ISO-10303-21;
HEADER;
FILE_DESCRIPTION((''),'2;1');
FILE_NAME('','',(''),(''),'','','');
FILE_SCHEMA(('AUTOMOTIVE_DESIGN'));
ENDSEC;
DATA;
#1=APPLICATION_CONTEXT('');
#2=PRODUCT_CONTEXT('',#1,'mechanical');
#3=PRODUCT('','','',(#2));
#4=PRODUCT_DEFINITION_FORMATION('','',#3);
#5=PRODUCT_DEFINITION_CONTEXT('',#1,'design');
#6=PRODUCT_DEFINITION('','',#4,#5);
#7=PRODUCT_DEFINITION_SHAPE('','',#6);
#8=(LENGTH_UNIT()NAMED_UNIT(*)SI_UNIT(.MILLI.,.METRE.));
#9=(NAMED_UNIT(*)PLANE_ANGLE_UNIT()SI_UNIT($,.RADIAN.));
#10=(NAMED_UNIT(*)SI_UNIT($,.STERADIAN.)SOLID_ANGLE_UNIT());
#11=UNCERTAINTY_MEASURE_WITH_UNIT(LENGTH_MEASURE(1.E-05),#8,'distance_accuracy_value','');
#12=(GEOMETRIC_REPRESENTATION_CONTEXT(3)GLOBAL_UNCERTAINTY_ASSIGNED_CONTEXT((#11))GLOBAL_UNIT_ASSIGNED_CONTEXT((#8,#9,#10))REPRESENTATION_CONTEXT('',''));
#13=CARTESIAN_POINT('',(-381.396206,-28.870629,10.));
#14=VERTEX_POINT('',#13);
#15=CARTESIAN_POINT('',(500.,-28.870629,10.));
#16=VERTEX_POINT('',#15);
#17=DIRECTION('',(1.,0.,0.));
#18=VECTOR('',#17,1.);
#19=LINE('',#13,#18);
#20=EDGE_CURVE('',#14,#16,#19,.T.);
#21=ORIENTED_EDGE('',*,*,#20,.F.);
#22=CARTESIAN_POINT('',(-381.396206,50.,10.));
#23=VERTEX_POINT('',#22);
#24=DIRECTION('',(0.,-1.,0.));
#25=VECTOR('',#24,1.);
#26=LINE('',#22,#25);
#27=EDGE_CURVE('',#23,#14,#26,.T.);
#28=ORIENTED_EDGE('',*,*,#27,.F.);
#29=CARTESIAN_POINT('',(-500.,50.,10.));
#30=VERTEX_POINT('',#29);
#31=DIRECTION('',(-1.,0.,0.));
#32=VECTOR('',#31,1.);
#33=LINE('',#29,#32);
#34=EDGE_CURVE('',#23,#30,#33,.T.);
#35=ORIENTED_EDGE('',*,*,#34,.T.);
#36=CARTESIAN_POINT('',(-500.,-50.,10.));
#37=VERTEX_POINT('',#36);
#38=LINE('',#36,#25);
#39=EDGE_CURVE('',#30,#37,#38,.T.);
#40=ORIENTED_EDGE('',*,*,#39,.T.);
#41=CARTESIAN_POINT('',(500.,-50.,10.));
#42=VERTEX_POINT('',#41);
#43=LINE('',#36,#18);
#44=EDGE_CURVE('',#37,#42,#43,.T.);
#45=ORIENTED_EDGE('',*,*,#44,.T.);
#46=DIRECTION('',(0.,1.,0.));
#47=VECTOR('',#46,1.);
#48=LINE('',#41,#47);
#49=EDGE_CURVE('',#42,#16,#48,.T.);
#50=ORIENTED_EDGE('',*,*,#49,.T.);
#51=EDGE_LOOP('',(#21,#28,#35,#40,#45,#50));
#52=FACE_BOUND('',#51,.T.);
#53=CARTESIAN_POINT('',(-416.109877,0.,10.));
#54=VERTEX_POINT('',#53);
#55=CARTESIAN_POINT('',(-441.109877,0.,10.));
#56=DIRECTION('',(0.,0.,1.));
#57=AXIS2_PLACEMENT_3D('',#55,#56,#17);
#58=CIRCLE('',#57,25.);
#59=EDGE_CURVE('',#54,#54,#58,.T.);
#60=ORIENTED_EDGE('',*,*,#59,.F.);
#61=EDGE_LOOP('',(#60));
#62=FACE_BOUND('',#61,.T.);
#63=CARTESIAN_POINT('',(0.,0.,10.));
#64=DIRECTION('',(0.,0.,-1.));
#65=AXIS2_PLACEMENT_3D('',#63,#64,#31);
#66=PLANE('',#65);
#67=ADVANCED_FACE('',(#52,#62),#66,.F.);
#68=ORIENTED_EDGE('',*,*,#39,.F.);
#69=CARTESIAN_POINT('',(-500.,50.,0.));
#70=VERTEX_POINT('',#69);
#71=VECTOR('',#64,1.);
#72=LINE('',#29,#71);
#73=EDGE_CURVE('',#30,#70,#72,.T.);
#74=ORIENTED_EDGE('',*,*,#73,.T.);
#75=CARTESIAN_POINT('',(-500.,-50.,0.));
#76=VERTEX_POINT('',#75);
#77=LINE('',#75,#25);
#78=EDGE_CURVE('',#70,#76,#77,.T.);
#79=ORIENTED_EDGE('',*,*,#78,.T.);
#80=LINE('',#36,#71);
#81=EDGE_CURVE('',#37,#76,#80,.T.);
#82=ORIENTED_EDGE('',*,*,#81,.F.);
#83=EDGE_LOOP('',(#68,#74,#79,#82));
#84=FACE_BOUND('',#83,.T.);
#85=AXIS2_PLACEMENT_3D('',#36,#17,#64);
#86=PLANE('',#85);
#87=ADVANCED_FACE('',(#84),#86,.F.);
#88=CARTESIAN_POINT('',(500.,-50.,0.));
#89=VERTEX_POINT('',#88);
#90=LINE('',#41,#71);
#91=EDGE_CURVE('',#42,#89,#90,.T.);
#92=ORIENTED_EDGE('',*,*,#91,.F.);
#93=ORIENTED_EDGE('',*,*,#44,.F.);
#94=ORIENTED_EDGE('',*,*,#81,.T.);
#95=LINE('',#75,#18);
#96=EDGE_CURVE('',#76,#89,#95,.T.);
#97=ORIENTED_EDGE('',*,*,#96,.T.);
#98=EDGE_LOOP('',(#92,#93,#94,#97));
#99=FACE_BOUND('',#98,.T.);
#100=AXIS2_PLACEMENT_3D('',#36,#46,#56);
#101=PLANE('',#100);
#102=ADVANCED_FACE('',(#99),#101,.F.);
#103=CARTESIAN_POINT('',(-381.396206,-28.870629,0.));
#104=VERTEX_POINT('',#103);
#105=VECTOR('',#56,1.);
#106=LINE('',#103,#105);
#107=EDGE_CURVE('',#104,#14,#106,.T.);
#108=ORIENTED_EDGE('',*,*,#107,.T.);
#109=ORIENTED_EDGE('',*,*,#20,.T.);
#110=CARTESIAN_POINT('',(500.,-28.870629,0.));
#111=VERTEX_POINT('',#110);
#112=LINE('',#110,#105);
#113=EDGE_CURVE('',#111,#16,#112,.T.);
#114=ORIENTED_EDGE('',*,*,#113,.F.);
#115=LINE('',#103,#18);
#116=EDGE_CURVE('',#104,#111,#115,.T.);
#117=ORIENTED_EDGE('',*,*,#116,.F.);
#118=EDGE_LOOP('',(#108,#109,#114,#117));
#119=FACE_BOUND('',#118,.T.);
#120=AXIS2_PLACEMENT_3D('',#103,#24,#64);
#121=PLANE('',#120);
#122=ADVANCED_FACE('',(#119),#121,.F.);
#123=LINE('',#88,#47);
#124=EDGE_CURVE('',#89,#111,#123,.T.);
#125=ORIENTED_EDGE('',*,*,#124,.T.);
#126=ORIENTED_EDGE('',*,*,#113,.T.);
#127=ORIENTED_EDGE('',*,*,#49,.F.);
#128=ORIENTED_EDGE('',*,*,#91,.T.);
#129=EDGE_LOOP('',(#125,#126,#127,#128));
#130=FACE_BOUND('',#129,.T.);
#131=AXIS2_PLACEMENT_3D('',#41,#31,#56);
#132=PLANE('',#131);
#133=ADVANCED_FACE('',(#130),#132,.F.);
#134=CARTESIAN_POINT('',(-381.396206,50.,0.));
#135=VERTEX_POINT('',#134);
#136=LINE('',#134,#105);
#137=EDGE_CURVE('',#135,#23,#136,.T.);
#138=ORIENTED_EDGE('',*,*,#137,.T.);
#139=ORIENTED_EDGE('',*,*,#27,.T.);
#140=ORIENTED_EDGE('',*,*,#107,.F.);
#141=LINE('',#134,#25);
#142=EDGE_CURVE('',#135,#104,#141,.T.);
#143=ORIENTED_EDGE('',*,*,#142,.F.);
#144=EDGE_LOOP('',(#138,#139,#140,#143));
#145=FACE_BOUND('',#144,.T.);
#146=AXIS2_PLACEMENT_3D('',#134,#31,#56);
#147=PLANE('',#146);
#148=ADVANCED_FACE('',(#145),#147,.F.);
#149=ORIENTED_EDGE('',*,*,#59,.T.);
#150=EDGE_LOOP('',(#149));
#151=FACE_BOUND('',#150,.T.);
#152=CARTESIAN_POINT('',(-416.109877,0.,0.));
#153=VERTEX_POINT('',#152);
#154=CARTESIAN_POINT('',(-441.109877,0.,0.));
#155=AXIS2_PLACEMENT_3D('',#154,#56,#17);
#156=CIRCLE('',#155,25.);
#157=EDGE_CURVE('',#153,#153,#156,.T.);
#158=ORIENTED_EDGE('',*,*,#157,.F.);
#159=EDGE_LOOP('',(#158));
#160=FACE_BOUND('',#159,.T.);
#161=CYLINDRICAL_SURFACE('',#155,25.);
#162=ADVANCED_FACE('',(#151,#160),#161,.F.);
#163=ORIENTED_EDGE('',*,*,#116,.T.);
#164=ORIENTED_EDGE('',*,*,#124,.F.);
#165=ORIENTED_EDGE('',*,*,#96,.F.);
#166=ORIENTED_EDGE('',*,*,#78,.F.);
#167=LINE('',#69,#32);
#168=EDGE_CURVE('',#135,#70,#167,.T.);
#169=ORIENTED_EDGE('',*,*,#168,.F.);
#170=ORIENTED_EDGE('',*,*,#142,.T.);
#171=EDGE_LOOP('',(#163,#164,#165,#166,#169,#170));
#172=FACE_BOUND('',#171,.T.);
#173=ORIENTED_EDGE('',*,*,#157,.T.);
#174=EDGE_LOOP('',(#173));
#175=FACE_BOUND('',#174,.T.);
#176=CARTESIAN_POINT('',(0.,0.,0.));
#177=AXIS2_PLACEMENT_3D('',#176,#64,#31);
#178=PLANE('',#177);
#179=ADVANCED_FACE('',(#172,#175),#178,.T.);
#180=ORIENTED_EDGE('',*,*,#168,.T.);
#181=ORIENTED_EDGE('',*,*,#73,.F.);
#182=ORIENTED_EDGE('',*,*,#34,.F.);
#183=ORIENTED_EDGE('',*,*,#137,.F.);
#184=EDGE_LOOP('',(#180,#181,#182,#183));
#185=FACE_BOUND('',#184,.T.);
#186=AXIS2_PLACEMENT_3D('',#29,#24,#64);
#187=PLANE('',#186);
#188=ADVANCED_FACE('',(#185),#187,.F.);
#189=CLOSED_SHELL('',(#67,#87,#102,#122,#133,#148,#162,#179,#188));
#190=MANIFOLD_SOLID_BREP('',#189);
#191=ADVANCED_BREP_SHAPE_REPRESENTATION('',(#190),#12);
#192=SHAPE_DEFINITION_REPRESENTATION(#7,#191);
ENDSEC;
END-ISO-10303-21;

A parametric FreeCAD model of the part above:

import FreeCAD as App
import Part
import Sketcher

V = App.Vector
Q = App.Units.Quantity


def add_polygon(sketch, points):
    """Adds a closed chain of lines whose ends are joined by coincident constraints."""
    first, n = sketch.GeometryCount, len(points)
    for a, b in zip(points, points[1:] + points[:1]):
        sketch.addGeometry(Part.LineSegment(App.Vector(*a, 0), App.Vector(*b, 0)), False)
    for i in range(n):
        sketch.addConstraint(Sketcher.Constraint("Coincident", first + i, 2, first + (i + 1) % n, 1))

doc = App.newDocument("Part")
params = doc.addObject("Spreadsheet::Sheet", "Params")
for row, (alias, value) in enumerate([
    ("sketch1_width", "1000 mm"),
    ("sketch1_height", "100 mm"),
    ("pad1_length", "10 mm"),
    ("sketch2_diameter", "50 mm"),
    ("pocket1_length", "10 mm"),
    ("pocket2_length", "10 mm"),
], start=1):
    params.set(f"A{row}", alias)
    params.set(f"B{row}", "=" + value)
    params.setAlias(f"B{row}", alias)

body = doc.addObject("PartDesign::Body", "Body")

# Sketch on XY plane
sketch1 = body.newObject("Sketcher::SketchObject", "Sketch")
sketch1.AttachmentSupport = (doc.getObject("XY_Plane"), [""])
sketch1.MapMode = "FlatFace"
add_polygon(sketch1, [(-500, 50), (-500, -50), (500, -50), (500, 50)])  # lines 0-3
sketch1.addConstraint(Sketcher.Constraint("Vertical", 0))
sketch1.addConstraint(Sketcher.Constraint("Horizontal", 1))
sketch1.addConstraint(Sketcher.Constraint("Vertical", 2))
sketch1.addConstraint(Sketcher.Constraint("Horizontal", 3))
sketch1.addConstraint(Sketcher.Constraint("Symmetric", 0, 2, 2, 2, -1, 1))
sketch1.addConstraint(Sketcher.Constraint("DistanceX", 1, 1, 1, 2, Q("1000 mm")))
sketch1.addConstraint(Sketcher.Constraint("DistanceY", 0, 2, 0, 1, Q("100 mm")))
sketch1.setExpression("Constraints[9]", "Params.sketch1_width")
sketch1.setExpression("Constraints[10]", "Params.sketch1_height")
pad1 = body.newObject("PartDesign::Pad", "Pad")
pad1.Profile = sketch1
pad1.setExpression("Length", "Params.pad1_length")

# Sketch on XY plane
sketch2 = body.newObject("Sketcher::SketchObject", "Sketch001")
sketch2.AttachmentSupport = (doc.getObject("XY_Plane"), [""])
sketch2.MapMode = "FlatFace"
sketch2.AttachmentOffset = App.Placement(V(0, 0, 10), App.Rotation())
sketch2.addGeometry(Part.Circle(V(-441, 0, 0), V(0, 0, 1), 25), False)
sketch2.addConstraint(Sketcher.Constraint("PointOnObject", 0, 3, -1))
sketch2.addConstraint(Sketcher.Constraint("Diameter", 0, Q("50 mm")))
sketch2.addConstraint(Sketcher.Constraint("DistanceX", 0, 3, -1, 1, Q("441.109877 mm")))
sketch2.setExpression("Constraints[1]", "Params.sketch2_diameter")
pocket1 = body.newObject("PartDesign::Pocket", "Pocket")
pocket1.Profile = sketch2
pocket1.setExpression("Length", "Params.pocket1_length")

# Sketch on XY plane
sketch3 = body.newObject("Sketcher::SketchObject", "Sketch002")
sketch3.AttachmentSupport = (doc.getObject("XY_Plane"), [""])
sketch3.MapMode = "FlatFace"
sketch3.AttachmentOffset = App.Placement(V(0, 0, 10), App.Rotation())
add_polygon(sketch3, [(-381, 50), (-381, -29), (500, -29), (500, 50)])  # lines 0-3
sketch3.addConstraint(Sketcher.Constraint("Vertical", 0))
sketch3.addConstraint(Sketcher.Constraint("Horizontal", 1))
sketch3.addConstraint(Sketcher.Constraint("Vertical", 2))
sketch3.addConstraint(Sketcher.Constraint("Horizontal", 3))
sketch3.addConstraint(Sketcher.Constraint("DistanceX", -1, 1, 1, 2, Q("500 mm")))
sketch3.addConstraint(Sketcher.Constraint("DistanceY", -1, 1, 2, 2, Q("50 mm")))
sketch3.addConstraint(Sketcher.Constraint("DistanceY", 0, 2, 0, 1, Q("78.870629 mm")))
sketch3.addConstraint(Sketcher.Constraint("DistanceX", 1, 1, 1, 2, Q("881.396206 mm")))
pocket2 = body.newObject("PartDesign::Pocket", "Pocket001")
pocket2.Profile = sketch3
pocket2.setExpression("Length", "Params.pocket2_length")

doc.recompute()
